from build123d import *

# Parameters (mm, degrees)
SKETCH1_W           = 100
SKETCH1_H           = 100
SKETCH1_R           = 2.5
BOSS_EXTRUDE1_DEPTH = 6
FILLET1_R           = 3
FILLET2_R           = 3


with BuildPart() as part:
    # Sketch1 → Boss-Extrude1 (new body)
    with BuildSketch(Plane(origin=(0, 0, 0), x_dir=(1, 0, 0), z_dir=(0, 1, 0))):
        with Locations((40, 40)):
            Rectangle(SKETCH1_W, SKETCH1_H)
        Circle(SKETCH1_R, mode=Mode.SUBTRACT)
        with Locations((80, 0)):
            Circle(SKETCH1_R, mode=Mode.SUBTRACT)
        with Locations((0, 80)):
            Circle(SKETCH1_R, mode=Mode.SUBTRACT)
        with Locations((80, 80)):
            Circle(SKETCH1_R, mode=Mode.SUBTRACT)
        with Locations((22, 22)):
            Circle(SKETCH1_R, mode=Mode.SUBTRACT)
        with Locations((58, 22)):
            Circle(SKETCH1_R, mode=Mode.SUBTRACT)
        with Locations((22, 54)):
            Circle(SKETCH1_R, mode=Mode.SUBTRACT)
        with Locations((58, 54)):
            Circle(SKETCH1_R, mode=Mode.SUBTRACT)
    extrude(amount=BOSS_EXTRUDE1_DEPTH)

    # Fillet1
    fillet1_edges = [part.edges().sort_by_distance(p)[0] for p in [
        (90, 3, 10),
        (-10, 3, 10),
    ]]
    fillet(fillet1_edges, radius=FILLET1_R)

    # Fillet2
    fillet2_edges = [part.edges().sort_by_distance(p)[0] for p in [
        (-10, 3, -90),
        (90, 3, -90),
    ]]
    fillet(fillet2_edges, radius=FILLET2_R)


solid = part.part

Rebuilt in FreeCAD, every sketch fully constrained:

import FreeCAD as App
import Part
import Sketcher
Q = App.Units.Quantity


def edges_at(feature, points):
    """Names of the edges that pass closest to the given points."""
    edges = feature.Shape.Edges
    near = lambda p: min(range(len(edges)), key=lambda i: edges[i].distToShape(Part.Vertex(*p))[0])
    return sorted({f"Edge{near(p) + 1}" for p in points})


def add_polygon(sketch, points):
    """Adds a closed chain of lines whose ends are joined by coincident constraints."""
    first, n = sketch.GeometryCount, len(points)
    for a, b in zip(points, points[1:] + points[:1]):
        sketch.addGeometry(Part.LineSegment(App.Vector(*a, 0), App.Vector(*b, 0)), False)
    for i in range(n):
        sketch.addConstraint(Sketcher.Constraint("Coincident", first + i, 2, first + (i + 1) % n, 1))

doc = App.newDocument("Part")
params = doc.addObject("Spreadsheet::Sheet", "Params")
for row, (alias, value) in enumerate([
    ("sketch1_diameter", "5 mm"),
    ("sketch1_width", "100 mm"),
    ("pad1_length", "6 mm"),
    ("fillet_radius", "3 mm"),
    ("fillet2_radius", "3 mm"),
], start=1):
    params.set(f"A{row}", alias)
    params.set(f"B{row}", "=" + value)
    params.setAlias(f"B{row}", alias)

body = doc.addObject("PartDesign::Body", "Body")

# Sketch on XZ plane
sketch1 = doc.addObject("Sketcher::SketchObject", "Sketch")
body.addObject(sketch1)
sketch1.AttachmentSupport = (doc.XZ_Plane, [""])
sketch1.MapMode = "FlatFace"
add_polygon(sketch1, [(-10, -90), (-10, 10), (90, 10), (90, -90)])  # lines 0-3
sketch1.addGeometry(Part.Circle(App.Vector(0, 0, 0), App.Vector(0, 0, 1), 2.5), False)  # 4
sketch1.addGeometry(Part.Circle(App.Vector(22, -22, 0), App.Vector(0, 0, 1), 2.5), False)  # 5
sketch1.addGeometry(Part.Circle(App.Vector(80, 0, 0), App.Vector(0, 0, 1), 2.5), False)  # 6
sketch1.addGeometry(Part.Circle(App.Vector(58, -22, 0), App.Vector(0, 0, 1), 2.5), False)  # 7
sketch1.addGeometry(Part.Circle(App.Vector(22, -54, 0), App.Vector(0, 0, 1), 2.5), False)  # 8
sketch1.addGeometry(Part.Circle(App.Vector(0, -80, 0), App.Vector(0, 0, 1), 2.5), False)  # 9
sketch1.addGeometry(Part.Circle(App.Vector(58, -54, 0), App.Vector(0, 0, 1), 2.5), False)  # 10
sketch1.addGeometry(Part.Circle(App.Vector(80, -80, 0), App.Vector(0, 0, 1), 2.5), False)  # 11
sketch1.addConstraint([
    Sketcher.Constraint("Vertical", 0),
    Sketcher.Constraint("Horizontal", 1),
    Sketcher.Constraint("Vertical", 2),
    Sketcher.Constraint("Horizontal", 3),
    Sketcher.Constraint("Coincident", 4, 3, -1, 1),
    Sketcher.Constraint("Equal", 4, 5),
    Sketcher.Constraint("Equal", 5, 6),
    Sketcher.Constraint("Equal", 6, 7),
    Sketcher.Constraint("Equal", 7, 8),
    Sketcher.Constraint("Equal", 8, 9),
    Sketcher.Constraint("Equal", 9, 10),
    Sketcher.Constraint("Equal", 10, 11),
    Sketcher.Constraint("PointOnObject", 6, 3, -1),
    Sketcher.Constraint("PointOnObject", 9, 3, -2),
    Sketcher.Constraint("Horizontal", 5, 3, 7, 3),
    Sketcher.Constraint("Horizontal", 8, 3, 10, 3),
    Sketcher.Constraint("Horizontal", 9, 3, 11, 3),
    Sketcher.Constraint("Vertical", 5, 3, 8, 3),
    Sketcher.Constraint("Vertical", 7, 3, 10, 3),
    Sketcher.Constraint("Vertical", 6, 3, 11, 3),
    Sketcher.Constraint("Equal", 3, 0),
    Sketcher.Constraint("Diameter", 4, Q("5 mm")),
    Sketcher.Constraint("DistanceX", 1, 1, 1, 2, Q("100 mm")),
    Sketcher.Constraint("DistanceX", -1, 1, 5, 3, Q("22 mm")),
    Sketcher.Constraint("DistanceY", 5, 3, -1, 1, Q("22 mm")),
    Sketcher.Constraint("DistanceX", -1, 1, 6, 3, Q("80 mm")),
    Sketcher.Constraint("DistanceX", -1, 1, 7, 3, Q("58 mm")),
    Sketcher.Constraint("DistanceY", 8, 3, -1, 1, Q("54 mm")),
    Sketcher.Constraint("DistanceY", 9, 3, -1, 1, Q("80 mm")),
    Sketcher.Constraint("DistanceX", 0, 2, -1, 1, Q("10 mm")),
    Sketcher.Constraint("DistanceY", -1, 1, 0, 2, Q("10 mm")),
])
sketch1.setExpression("Constraints[25]", "Params.sketch1_diameter")
sketch1.setExpression("Constraints[26]", "Params.sketch1_width")
pad1 = doc.addObject("PartDesign::Pad", "Pad")
body.addObject(pad1)
pad1.Profile = sketch1
pad1.setExpression("Length", "Params.pad1_length")
pad1.Reversed = True
doc.recompute()

fillet = doc.addObject("PartDesign::Fillet", "Fillet")
body.addObject(fillet)
fillet.Base = (pad1, edges_at(pad1, [(90, 3, 10), (-10, 3, 10)]))
fillet.setExpression("Radius", "Params.fillet_radius")
doc.recompute()

fillet2 = doc.addObject("PartDesign::Fillet", "Fillet001")
body.addObject(fillet2)
fillet2.Base = (fillet, edges_at(fillet, [(-10, 3, -90), (90, 3, -90)]))
fillet2.setExpression("Radius", "Params.fillet2_radius")

doc.recompute()
